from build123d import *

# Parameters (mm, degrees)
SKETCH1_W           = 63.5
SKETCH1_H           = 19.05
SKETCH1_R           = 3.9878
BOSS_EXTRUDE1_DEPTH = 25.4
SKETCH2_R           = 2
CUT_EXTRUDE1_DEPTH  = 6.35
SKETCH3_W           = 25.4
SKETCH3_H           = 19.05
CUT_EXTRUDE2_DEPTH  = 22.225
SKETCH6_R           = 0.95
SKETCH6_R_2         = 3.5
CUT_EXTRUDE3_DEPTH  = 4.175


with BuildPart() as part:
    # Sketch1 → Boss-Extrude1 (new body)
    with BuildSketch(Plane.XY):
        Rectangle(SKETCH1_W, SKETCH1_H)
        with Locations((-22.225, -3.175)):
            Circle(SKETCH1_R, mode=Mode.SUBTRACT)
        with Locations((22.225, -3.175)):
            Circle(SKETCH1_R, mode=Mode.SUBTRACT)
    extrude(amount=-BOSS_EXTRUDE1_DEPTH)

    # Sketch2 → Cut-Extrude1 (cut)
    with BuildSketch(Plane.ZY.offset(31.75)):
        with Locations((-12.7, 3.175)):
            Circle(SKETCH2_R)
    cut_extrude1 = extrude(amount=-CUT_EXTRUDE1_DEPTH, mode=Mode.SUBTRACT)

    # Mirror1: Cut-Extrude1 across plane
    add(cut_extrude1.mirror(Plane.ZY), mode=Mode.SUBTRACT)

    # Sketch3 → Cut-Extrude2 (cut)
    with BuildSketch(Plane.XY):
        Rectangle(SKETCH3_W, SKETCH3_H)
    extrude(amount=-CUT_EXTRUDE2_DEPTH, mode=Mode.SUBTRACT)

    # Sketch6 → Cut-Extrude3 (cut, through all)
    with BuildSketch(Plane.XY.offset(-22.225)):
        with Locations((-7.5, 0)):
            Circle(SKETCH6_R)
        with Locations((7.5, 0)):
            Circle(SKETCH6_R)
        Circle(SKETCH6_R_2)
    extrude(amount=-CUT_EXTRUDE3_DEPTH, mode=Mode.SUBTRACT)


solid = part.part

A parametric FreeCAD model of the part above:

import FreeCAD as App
import Part
import Sketcher
from FreeCAD import Vector
Q = App.Units.Quantity

doc = App.newDocument("Part")
body = doc.addObject("PartDesign::Body", "Body")

# Sketch on XY plane
sketch1 = body.newObject("Sketcher::SketchObject", "Sketch")
sketch1.AttachmentSupport = (doc.getObject("XY_Plane"), [""])
sketch1.MapMode = "FlatFace"
sketch1.addGeometry([
    Part.LineSegment(Vector(-31.8, 9.5, 0), Vector(-31.8, -9.5, 0)),  # 0
    Part.LineSegment(Vector(-31.8, -9.5, 0), Vector(31.8, -9.5, 0)),  # 1
    Part.LineSegment(Vector(31.8, -9.5, 0), Vector(31.8, 9.5, 0)),  # 2
    Part.LineSegment(Vector(31.8, 9.5, 0), Vector(-31.8, 9.5, 0)),  # 3
    Part.Circle(Vector(-22.2, -3.2, 0), Vector(0, 0, 1), 4),  # 4
    Part.Circle(Vector(22.2, -3.2, 0), Vector(0, 0, 1), 4),  # 5
], False)
sketch1.addConstraint([
    Sketcher.Constraint("Coincident", 0, 2, 1, 1),
    Sketcher.Constraint("Coincident", 1, 2, 2, 1),
    Sketcher.Constraint("Coincident", 2, 2, 3, 1),
    Sketcher.Constraint("Coincident", 3, 2, 0, 1),
    Sketcher.Constraint("Vertical", 0),
    Sketcher.Constraint("Horizontal", 1),
    Sketcher.Constraint("Vertical", 2),
    Sketcher.Constraint("Horizontal", 3),
    Sketcher.Constraint("Equal", 4, 5),
    Sketcher.Constraint("Symmetric", 0, 2, 2, 2, -1, 1),
    Sketcher.Constraint("Symmetric", 4, 3, 5, 3, -2),
    Sketcher.Constraint("Diameter", 4, Q("0.314 in")),
    Sketcher.Constraint("DistanceX", 1, 1, 1, 2, Q("2.5 in")),
    Sketcher.Constraint("DistanceY", 0, 2, 0, 1, Q("0.75 in")),
    Sketcher.Constraint("DistanceY", 5, 3, 2, 2, Q("0.5 in")),
    Sketcher.Constraint("DistanceX", 4, 3, 5, 3, Q("1.75 in")),
])
pad1 = body.newObject("PartDesign::Pad", "Pad")
pad1.Profile = sketch1
pad1.Length = Q("1 in")
pad1.Reversed = True

# Sketch on YZ plane
sketch2 = body.newObject("Sketcher::SketchObject", "Sketch001")
sketch2.AttachmentSupport = (doc.getObject("YZ_Plane"), [""])
sketch2.MapMode = "FlatFace"
sketch2.AttachmentOffset = App.Placement(Vector(0, 0, -1.25 * 25.4), App.Rotation())
sketch2.addGeometry(Part.Circle(Vector(3.2, -12.7, 0), Vector(0, 0, 1), 2), False)
sketch2.addConstraint([
    Sketcher.Constraint("DistanceY", 0, 3, -1, 1, Q("0.5 in")),
    Sketcher.Constraint("Diameter", 0, 4.0),
    Sketcher.Constraint("DistanceX", -1, 1, 0, 3, Q("0.125 in")),
])
pocket1 = body.newObject("PartDesign::Pocket", "Pocket")
pocket1.Profile = sketch2
pocket1.Length = Q("0.25 in")
pocket1.Reversed = True
doc.recompute()

mirrored = body.newObject("PartDesign::Mirrored", "Mirrored")
mirrored.Originals = [pocket1]
mirrored.MirrorPlane = (doc.getObject("YZ_Plane"), [""])
body.Tip = mirrored

# Sketch on XY plane
sketch3 = body.newObject("Sketcher::SketchObject", "Sketch002")
sketch3.AttachmentSupport = (doc.getObject("XY_Plane"), [""])
sketch3.MapMode = "FlatFace"
sketch3.addGeometry([
    Part.LineSegment(Vector(-13, 10, 0), Vector(-13, -10, 0)),
    Part.LineSegment(Vector(-13, -10, 0), Vector(13, -10, 0)),
    Part.LineSegment(Vector(13, -10, 0), Vector(13, 10, 0)),
    Part.LineSegment(Vector(13, 10, 0), Vector(-13, 10, 0)),
], False)
sketch3.addConstraint([
    Sketcher.Constraint("Coincident", 0, 2, 1, 1),
    Sketcher.Constraint("Coincident", 1, 2, 2, 1),
    Sketcher.Constraint("Coincident", 2, 2, 3, 1),
    Sketcher.Constraint("Coincident", 3, 2, 0, 1),
    Sketcher.Constraint("Vertical", 0),
    Sketcher.Constraint("Horizontal", 1),
    Sketcher.Constraint("Vertical", 2),
    Sketcher.Constraint("Horizontal", 3),
    Sketcher.Constraint("Symmetric", 0, 2, 2, 2, -1, 1),
    Sketcher.Constraint("DistanceX", 1, 1, 1, 2, Q("1 in")),
    Sketcher.Constraint("DistanceY", 0, 2, 0, 1, Q("0.75 in")),
])
pocket2 = body.newObject("PartDesign::Pocket", "Pocket001")
pocket2.Profile = sketch3
pocket2.Length = Q("0.875 in")

# Sketch on XY plane
sketch4 = body.newObject("Sketcher::SketchObject", "Sketch003")
sketch4.AttachmentSupport = (doc.getObject("XY_Plane"), [""])
sketch4.MapMode = "FlatFace"
sketch4.AttachmentOffset = App.Placement(Vector(0, 0, -0.875 * 25.4), App.Rotation())
sketch4.addGeometry([
    Part.Circle(Vector(-7.5, 0, 0), Vector(0, 0, 1), 0.9),
    Part.Circle(Vector(7.5, 0, 0), Vector(0, 0, 1), 0.9),
    Part.Circle(Vector(0, 0, 0), Vector(0, 0, 1), 3.5),
], False)
sketch4.addConstraint([
    Sketcher.Constraint("Coincident", 2, 3, -1, 1),
    Sketcher.Constraint("Equal", 0, 1),
    Sketcher.Constraint("Symmetric", 0, 3, 1, 3, -1, 1),
    Sketcher.Constraint("PointOnObject", 0, 3, -1),
    Sketcher.Constraint("Diameter", 0, 1.9),
    Sketcher.Constraint("Diameter", 2, 7.0),
    Sketcher.Constraint("DistanceX", 0, 3, -1, 1, 7.5),
])
pocket3 = body.newObject("PartDesign::Pocket", "Pocket002")
pocket3.Profile = sketch4
pocket3.Type = "ThroughAll"

doc.recompute()
